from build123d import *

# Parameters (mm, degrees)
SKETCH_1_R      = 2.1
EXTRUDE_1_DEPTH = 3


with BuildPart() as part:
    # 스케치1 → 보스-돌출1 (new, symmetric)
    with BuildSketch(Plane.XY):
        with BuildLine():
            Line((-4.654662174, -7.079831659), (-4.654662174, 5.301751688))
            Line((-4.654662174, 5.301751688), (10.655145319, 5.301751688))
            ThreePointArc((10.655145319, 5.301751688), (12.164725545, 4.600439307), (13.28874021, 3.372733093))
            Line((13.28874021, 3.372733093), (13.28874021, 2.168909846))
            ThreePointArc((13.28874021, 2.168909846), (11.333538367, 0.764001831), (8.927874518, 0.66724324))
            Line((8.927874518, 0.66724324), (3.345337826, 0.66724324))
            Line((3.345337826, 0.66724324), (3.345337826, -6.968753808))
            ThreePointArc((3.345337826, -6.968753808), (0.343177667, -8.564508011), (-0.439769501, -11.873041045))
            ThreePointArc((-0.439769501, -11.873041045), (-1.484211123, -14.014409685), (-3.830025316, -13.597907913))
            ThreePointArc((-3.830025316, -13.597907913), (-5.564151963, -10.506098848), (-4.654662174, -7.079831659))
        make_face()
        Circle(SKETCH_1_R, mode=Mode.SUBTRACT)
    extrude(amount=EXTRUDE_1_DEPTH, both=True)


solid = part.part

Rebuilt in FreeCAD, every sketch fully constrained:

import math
import FreeCAD as App
import Part
import Sketcher

V = App.Vector

doc = App.newDocument("Part")
params = doc.addObject("Spreadsheet::Sheet", "Params")
for row, (alias, value) in enumerate([
    ("sketch1_diameter", "4.2 mm"),
    ("pad1_length", "6 mm"),
], start=1):
    params.set(f"A{row}", alias)
    params.set(f"B{row}", "=" + value)
    params.setAlias(f"B{row}", alias)

body = doc.addObject("PartDesign::Body", "Body")

# Sketch on XY plane
sketch1 = doc.addObject("Sketcher::SketchObject", "Sketch")
body.addObject(sketch1)
sketch1.AttachmentSupport = (doc.XY_Plane, [""])
sketch1.MapMode = "FlatFace"
sketch1.addGeometry([
    Part.LineSegment(V(-4.7, 5.3, 0), V(-4.7, -7.1, 0)),  # 0
    Part.ArcOfCircle(Part.Circle(V(-0.9, -9.9, 0), V(0, 0, 1), 4.7), math.radians(143), math.radians(231)),  # 1
    Part.ArcOfCircle(Part.Circle(V(-2.4, -12.3, 0), V(0, 0, 1), 2), math.radians(-137), math.radians(11)),  # 2
    Part.ArcOfCircle(Part.Circle(V(3.6, -11.1, 0), V(0, 0, 1), 4.1), math.radians(94), math.radians(191)),  # 3
    Part.LineSegment(V(3.3, -7, 0), V(3.3, 0.7, 0)),  # 4
    Part.LineSegment(V(3.3, 0.7, 0), V(8.9, 0.7, 0)),  # 5
    Part.ArcOfCircle(Part.Circle(V(10, 4.7, 0), V(0, 0, 1), 4.2), math.radians(-104), math.radians(-38)),  # 6
    Part.LineSegment(V(13.3, 2.2, 0), V(13.3, 3.4, 0)),  # 7
    Part.ArcOfCircle(Part.Circle(V(9.7, 1.2, 0), V(0, 0, 1), 4.2), math.radians(31), math.radians(76)),  # 8
    Part.LineSegment(V(10.7, 5.3, 0), V(-4.7, 5.3, 0)),  # 9
    Part.Circle(V(0, 0, 0), V(0, 0, 1), 2.1),  # 10
], False)
sketch1.addConstraint([
    Sketcher.Constraint("Coincident", 0, 2, 1, 1),
    Sketcher.Constraint("Coincident", 1, 2, 2, 1),
    Sketcher.Constraint("Tangent", 2, 2, 3, 2),
    Sketcher.Constraint("Coincident", 3, 1, 4, 1),
    Sketcher.Constraint("Coincident", 4, 2, 5, 1),
    Sketcher.Constraint("Coincident", 5, 2, 6, 1),
    Sketcher.Constraint("Coincident", 6, 2, 7, 1),
    Sketcher.Constraint("Coincident", 7, 2, 8, 1),
    Sketcher.Constraint("Coincident", 8, 2, 9, 1),
    Sketcher.Constraint("Coincident", 9, 2, 0, 1),
    Sketcher.Constraint("Vertical", 0),
    Sketcher.Constraint("Vertical", 4),
    Sketcher.Constraint("Horizontal", 5),
    Sketcher.Constraint("Vertical", 7),
    Sketcher.Constraint("Horizontal", 9),
    Sketcher.Constraint("Coincident", 10, 3, -1, 1),
    Sketcher.Constraint("Diameter", 10, 4.2),
    Sketcher.Constraint("DistanceX", 0, 2, 4, 2, 8.0),
    Sketcher.Constraint("Radius", 3, 4.123489),
    Sketcher.Constraint("Radius", 1, 4.715926),
    Sketcher.Constraint("Radius", 2, 1.977887),
    Sketcher.Constraint("Radius", 6, 4.189687),
    Sketcher.Constraint("Radius", 8, 4.246265),
    Sketcher.Constraint("DistanceX", 2, 3, -1, 1, 2.381098),
    Sketcher.Constraint("DistanceY", 3, 3, -1, 1, 11.083901),
    Sketcher.Constraint("DistanceY", -1, 1, 6, 3, 4.7254),
    Sketcher.Constraint("DistanceX", 2, 3, 3, 3, 5.988602),
    Sketcher.Constraint("DistanceX", 5, 1, 5, 2, 5.582537),
    Sketcher.Constraint("DistanceX", 9, 2, 9, 1, 15.309807),
    Sketcher.Constraint("DistanceY", 0, 2, 0, 1, 12.381583),
    Sketcher.Constraint("DistanceY", 4, 1, 4, 2, 7.635997),
    Sketcher.Constraint("DistanceY", 7, 1, 7, 2, 1.203823),
    Sketcher.Constraint("DistanceX", 1, 3, -1, 1, 0.885521),
    Sketcher.Constraint("DistanceY", 1, 3, -1, 1, 9.91418),
    Sketcher.Constraint("DistanceX", -1, 1, 6, 3, 9.969429),
    Sketcher.Constraint("DistanceX", -1, 1, 8, 3, 9.655572),
])
sketch1.setExpression("Constraints[16]", "Params.sketch1_diameter")
pad1 = doc.addObject("PartDesign::Pad", "Pad")
body.addObject(pad1)
pad1.Profile = sketch1
pad1.setExpression("Length", "Params.pad1_length")
pad1.Midplane = True

doc.recompute()
